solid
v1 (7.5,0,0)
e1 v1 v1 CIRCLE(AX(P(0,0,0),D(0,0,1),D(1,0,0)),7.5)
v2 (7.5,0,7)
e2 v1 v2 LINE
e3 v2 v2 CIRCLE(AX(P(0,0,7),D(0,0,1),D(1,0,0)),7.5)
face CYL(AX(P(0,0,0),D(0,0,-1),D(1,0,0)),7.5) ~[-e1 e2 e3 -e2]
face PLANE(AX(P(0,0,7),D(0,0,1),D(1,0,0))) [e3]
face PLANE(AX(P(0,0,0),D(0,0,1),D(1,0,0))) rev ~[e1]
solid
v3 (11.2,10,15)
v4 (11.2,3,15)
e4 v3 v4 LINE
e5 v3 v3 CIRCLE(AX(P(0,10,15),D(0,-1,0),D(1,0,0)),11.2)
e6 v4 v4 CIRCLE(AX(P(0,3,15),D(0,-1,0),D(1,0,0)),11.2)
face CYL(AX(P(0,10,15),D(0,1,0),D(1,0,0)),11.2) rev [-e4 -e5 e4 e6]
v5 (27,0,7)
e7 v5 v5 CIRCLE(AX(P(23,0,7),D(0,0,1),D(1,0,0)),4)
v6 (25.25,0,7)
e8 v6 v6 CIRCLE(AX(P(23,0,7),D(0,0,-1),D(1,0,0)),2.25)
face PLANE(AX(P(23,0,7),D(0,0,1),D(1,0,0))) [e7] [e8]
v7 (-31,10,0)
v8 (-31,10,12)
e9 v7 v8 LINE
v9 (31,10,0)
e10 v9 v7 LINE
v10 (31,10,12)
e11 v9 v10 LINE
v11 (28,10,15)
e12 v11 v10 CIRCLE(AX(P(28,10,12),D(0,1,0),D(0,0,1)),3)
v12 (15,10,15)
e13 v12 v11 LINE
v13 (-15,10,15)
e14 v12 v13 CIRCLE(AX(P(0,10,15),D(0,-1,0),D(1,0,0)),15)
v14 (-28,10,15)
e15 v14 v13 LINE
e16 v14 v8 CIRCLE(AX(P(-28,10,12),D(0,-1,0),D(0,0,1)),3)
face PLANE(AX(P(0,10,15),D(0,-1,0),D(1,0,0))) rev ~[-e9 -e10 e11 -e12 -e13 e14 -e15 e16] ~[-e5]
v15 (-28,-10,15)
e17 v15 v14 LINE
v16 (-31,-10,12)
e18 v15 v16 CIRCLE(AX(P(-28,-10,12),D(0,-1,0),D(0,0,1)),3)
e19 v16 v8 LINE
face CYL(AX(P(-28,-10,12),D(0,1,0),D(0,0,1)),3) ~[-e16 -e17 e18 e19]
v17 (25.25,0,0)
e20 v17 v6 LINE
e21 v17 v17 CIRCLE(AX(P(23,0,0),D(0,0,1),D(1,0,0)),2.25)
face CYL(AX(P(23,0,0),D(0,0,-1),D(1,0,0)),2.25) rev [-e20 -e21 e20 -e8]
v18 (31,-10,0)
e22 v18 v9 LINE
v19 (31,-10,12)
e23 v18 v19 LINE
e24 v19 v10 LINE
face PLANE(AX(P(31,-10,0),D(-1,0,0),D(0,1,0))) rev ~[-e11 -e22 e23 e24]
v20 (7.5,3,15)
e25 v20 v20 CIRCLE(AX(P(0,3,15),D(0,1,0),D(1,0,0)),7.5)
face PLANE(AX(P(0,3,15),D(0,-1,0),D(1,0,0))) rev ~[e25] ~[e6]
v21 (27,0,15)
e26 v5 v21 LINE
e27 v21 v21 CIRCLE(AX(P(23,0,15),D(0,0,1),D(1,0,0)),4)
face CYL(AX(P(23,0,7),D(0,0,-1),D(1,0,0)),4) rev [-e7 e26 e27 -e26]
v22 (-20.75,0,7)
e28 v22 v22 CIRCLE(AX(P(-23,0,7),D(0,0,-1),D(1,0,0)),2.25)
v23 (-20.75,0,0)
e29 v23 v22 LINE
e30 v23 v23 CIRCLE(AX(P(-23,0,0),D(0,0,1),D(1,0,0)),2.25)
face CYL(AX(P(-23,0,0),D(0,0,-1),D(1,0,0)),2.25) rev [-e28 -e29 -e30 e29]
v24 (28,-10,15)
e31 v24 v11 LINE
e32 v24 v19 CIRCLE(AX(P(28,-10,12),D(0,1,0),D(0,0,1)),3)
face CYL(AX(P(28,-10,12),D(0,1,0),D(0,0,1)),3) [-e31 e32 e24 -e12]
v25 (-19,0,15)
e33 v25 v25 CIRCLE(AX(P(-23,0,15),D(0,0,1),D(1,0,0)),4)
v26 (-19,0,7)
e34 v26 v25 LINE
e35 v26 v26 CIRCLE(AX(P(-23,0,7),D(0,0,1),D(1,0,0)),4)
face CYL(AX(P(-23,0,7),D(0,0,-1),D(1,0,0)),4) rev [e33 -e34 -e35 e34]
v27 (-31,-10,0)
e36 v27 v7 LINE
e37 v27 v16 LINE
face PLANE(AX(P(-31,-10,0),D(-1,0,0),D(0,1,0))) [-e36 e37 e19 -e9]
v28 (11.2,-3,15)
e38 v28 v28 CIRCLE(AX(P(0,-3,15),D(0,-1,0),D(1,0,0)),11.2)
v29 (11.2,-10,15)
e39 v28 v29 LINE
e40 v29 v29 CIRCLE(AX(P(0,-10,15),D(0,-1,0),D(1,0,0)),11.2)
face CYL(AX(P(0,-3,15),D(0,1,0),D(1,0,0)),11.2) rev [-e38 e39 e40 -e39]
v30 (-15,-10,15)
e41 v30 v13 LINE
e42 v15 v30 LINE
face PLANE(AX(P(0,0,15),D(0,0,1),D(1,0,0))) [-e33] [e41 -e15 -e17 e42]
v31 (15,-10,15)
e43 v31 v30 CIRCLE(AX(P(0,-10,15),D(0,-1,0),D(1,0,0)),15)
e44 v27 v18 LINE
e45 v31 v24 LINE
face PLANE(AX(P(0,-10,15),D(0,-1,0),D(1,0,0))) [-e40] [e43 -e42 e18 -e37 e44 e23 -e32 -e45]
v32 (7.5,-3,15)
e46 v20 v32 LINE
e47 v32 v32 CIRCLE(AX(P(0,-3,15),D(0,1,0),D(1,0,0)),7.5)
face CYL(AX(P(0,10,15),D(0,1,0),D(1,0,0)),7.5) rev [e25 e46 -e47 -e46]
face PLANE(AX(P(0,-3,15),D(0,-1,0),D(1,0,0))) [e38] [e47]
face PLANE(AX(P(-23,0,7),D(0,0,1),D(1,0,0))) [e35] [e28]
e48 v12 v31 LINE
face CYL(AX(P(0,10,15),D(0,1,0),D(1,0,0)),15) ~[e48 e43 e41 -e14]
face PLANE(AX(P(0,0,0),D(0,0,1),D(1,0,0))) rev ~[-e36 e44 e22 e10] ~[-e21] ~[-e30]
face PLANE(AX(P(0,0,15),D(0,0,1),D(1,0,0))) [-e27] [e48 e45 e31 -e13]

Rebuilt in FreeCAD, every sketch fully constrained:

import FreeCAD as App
import Part
import Sketcher


def edges_at(feature, points):
    """Names of the edges that pass closest to the given points."""
    edges = feature.Shape.Edges
    near = lambda p: min(range(len(edges)), key=lambda i: edges[i].distToShape(Part.Vertex(*p))[0])
    return sorted({f"Edge{near(p) + 1}" for p in points})


def add_polygon(sketch, points):
    """Adds a closed chain of lines whose ends are joined by coincident constraints."""
    first, n = sketch.GeometryCount, len(points)
    for a, b in zip(points, points[1:] + points[:1]):
        sketch.addGeometry(Part.LineSegment(App.Vector(*a, 0), App.Vector(*b, 0)), False)
    for i in range(n):
        sketch.addConstraint(Sketcher.Constraint("Coincident", first + i, 2, first + (i + 1) % n, 1))

doc = App.newDocument("Part")
body = doc.addObject("PartDesign::Body", "Body")

# Sketch on XY plane
sketch1 = body.newObject("Sketcher::SketchObject", "Sketch")
sketch1.AttachmentSupport = (doc.getObject("XY_Plane"), [""])
sketch1.MapMode = "FlatFace"
sketch1.addGeometry(Part.Circle(App.Vector(0, 0, 0), App.Vector(0, 0, 1), 8), False)
sketch1.addConstraint([
    Sketcher.Constraint("Coincident", 0, 3, -1, 1),
    Sketcher.Constraint("Diameter", 0, 15.0),
])
pad1 = body.newObject("PartDesign::Pad", "Pad")
pad1.Profile = sketch1
pad1.Length = 7
body2 = doc.addObject("PartDesign::Body", "Body001")

# Sketch on XY plane
sketch2 = body2.newObject("Sketcher::SketchObject", "Sketch001")
sketch2.AttachmentSupport = (doc.getObject("XY_Plane001"), [""])
sketch2.MapMode = "FlatFace"
sketch2.AttachmentOffset = App.Placement(App.Vector(0, 0, 7), App.Rotation())
sketch2.addGeometry(Part.Circle(App.Vector(0, 0, 0), App.Vector(0, 0, 1), 4), False)
sketch2.addConstraint([
    Sketcher.Constraint("Coincident", 0, 3, -1, 1),
    Sketcher.Constraint("Diameter", 0, 8.0),
])
pad2 = body2.newObject("PartDesign::Pad", "Pad001")
pad2.Profile = sketch2
pad2.Length = 8
body3 = doc.addObject("PartDesign::Body", "Body002")

# Sketch on XY plane
sketch3 = body3.newObject("Sketcher::SketchObject", "Sketch002")
sketch3.AttachmentSupport = (doc.getObject("XY_Plane002"), [""])
sketch3.MapMode = "FlatFace"
sketch3.addGeometry(Part.Circle(App.Vector(0, 0, 0), App.Vector(0, 0, 1), 2.2), False)
sketch3.addConstraint([
    Sketcher.Constraint("Coincident", 0, 3, -1, 1),
    Sketcher.Constraint("Diameter", 0, 4.5),
])
pad3 = body3.newObject("PartDesign::Pad", "Pad002")
pad3.Profile = sketch3
pad3.Length = 15
doc.recompute()

boolean = body3.newObject("PartDesign::Boolean", "Boolean")
boolean.Type = "Fuse"
boolean.addObjects([body2])
body4 = doc.addObject("PartDesign::Body", "Body003")
doc.recompute()

body3.Placement = App.Placement(App.Vector(-23, 0, 0), App.Rotation(App.Vector(0, 0, 1), 0))
boolean2 = body4.newObject("PartDesign::Boolean", "Boolean001")
boolean2.Type = "Fuse"
boolean2.addObjects([body3])
body5 = doc.addObject("PartDesign::Body", "Body004")

# Sketch on XZ plane
sketch4 = body5.newObject("Sketcher::SketchObject", "Sketch003")
sketch4.AttachmentSupport = (doc.getObject("XZ_Plane004"), [""])
sketch4.MapMode = "FlatFace"
sketch4.AttachmentOffset = App.Placement(App.Vector(0, 0, 3), App.Rotation())
sketch4.addGeometry(Part.Circle(App.Vector(0, 15, 0), App.Vector(0, 0, 1), 11), False)
sketch4.addConstraint([
    Sketcher.Constraint("PointOnObject", 0, 3, -2),
    Sketcher.Constraint("Diameter", 0, 22.4),
    Sketcher.Constraint("DistanceY", -1, 1, 0, 3, 15.0),
])
pad4 = body5.newObject("PartDesign::Pad", "Pad003")
pad4.Profile = sketch4
pad4.Length = 7
body6 = doc.addObject("PartDesign::Body", "Body005")

# Sketch on XZ plane
sketch5 = body6.newObject("Sketcher::SketchObject", "Sketch004")
sketch5.AttachmentSupport = (doc.getObject("XZ_Plane005"), [""])
sketch5.MapMode = "FlatFace"
sketch5.AttachmentOffset = App.Placement(App.Vector(0, 0, -10), App.Rotation())
sketch5.addGeometry(Part.Circle(App.Vector(0, 15, 0), App.Vector(0, 0, 1), 11), False)
sketch5.addConstraint([
    Sketcher.Constraint("PointOnObject", 0, 3, -2),
    Sketcher.Constraint("Diameter", 0, 22.4),
    Sketcher.Constraint("DistanceY", -1, 1, 0, 3, 15.0),
])
pad5 = body6.newObject("PartDesign::Pad", "Pad004")
pad5.Profile = sketch5
pad5.Length = 7
body7 = doc.addObject("PartDesign::Body", "Body006")

# Sketch on XZ plane
sketch6 = body7.newObject("Sketcher::SketchObject", "Sketch005")
sketch6.AttachmentSupport = (doc.getObject("XZ_Plane006"), [""])
sketch6.MapMode = "FlatFace"
sketch6.AttachmentOffset = App.Placement(App.Vector(0, 0, -10), App.Rotation())
sketch6.addGeometry(Part.Circle(App.Vector(0, 15, 0), App.Vector(0, 0, 1), 8), False)
sketch6.addConstraint([
    Sketcher.Constraint("PointOnObject", 0, 3, -2),
    Sketcher.Constraint("Diameter", 0, 15.0),
    Sketcher.Constraint("DistanceY", -1, 1, 0, 3, 15.0),
])
pad6 = body7.newObject("PartDesign::Pad", "Pad005")
pad6.Profile = sketch6
pad6.Length = 20
doc.recompute()

boolean3 = body7.newObject("PartDesign::Boolean", "Boolean002")
boolean3.Type = "Fuse"
boolean3.addObjects([body5])
doc.recompute()

boolean4 = body7.newObject("PartDesign::Boolean", "Boolean003")
boolean4.Type = "Fuse"
boolean4.addObjects([body6])
body8 = doc.addObject("PartDesign::Body", "Body007")

# Sketch on XY plane
sketch7 = body8.newObject("Sketcher::SketchObject", "Sketch006")
sketch7.AttachmentSupport = (doc.getObject("XY_Plane007"), [""])
sketch7.MapMode = "FlatFace"
sketch7.AttachmentOffset = App.Placement(App.Vector(0, 0, 7), App.Rotation())
sketch7.addGeometry(Part.Circle(App.Vector(0, 0, 0), App.Vector(0, 0, 1), 4), False)
sketch7.addConstraint([
    Sketcher.Constraint("Coincident", 0, 3, -1, 1),
    Sketcher.Constraint("Diameter", 0, 8.0),
])
pad7 = body8.newObject("PartDesign::Pad", "Pad006")
pad7.Profile = sketch7
pad7.Length = 8
body9 = doc.addObject("PartDesign::Body", "Body008")

# Sketch on XY plane
sketch8 = body9.newObject("Sketcher::SketchObject", "Sketch007")
sketch8.AttachmentSupport = (doc.getObject("XY_Plane008"), [""])
sketch8.MapMode = "FlatFace"
sketch8.addGeometry(Part.Circle(App.Vector(0, 0, 0), App.Vector(0, 0, 1), 2.2), False)
sketch8.addConstraint([
    Sketcher.Constraint("Coincident", 0, 3, -1, 1),
    Sketcher.Constraint("Diameter", 0, 4.5),
])
pad8 = body9.newObject("PartDesign::Pad", "Pad007")
pad8.Profile = sketch8
pad8.Length = 15
doc.recompute()

boolean5 = body9.newObject("PartDesign::Boolean", "Boolean004")
boolean5.Type = "Fuse"
boolean5.addObjects([body8])
body10 = doc.addObject("PartDesign::Body", "Body009")
body10.AllowCompound = True
doc.recompute()

body9.Placement = App.Placement(App.Vector(23, 0, 0), App.Rotation(App.Vector(0, 0, 1), 0))
boolean6 = body10.newObject("PartDesign::Boolean", "Boolean005")
boolean6.Type = "Fuse"
boolean6.addObjects([body9])
doc.recompute()

boolean7 = body10.newObject("PartDesign::Boolean", "Boolean006")
boolean7.Type = "Fuse"
boolean7.addObjects([body4])
doc.recompute()

boolean8 = body10.newObject("PartDesign::Boolean", "Boolean007")
boolean8.Type = "Fuse"
boolean8.addObjects([body7])
body11 = doc.addObject("PartDesign::Body", "Body010")

# Sketch on XZ plane
sketch9 = body11.newObject("Sketcher::SketchObject", "Sketch008")
sketch9.AttachmentSupport = (doc.getObject("XZ_Plane010"), [""])
sketch9.MapMode = "FlatFace"
sketch9.AttachmentOffset = App.Placement(App.Vector(0, 0, -10), App.Rotation())
sketch9.addGeometry(Part.Circle(App.Vector(0, 15, 0), App.Vector(0, 0, 1), 15), False)
sketch9.addConstraint([
    Sketcher.Constraint("PointOnObject", 0, 3, -2),
    Sketcher.Constraint("Diameter", 0, 30.0),
    Sketcher.Constraint("DistanceY", -1, 1, 0, 3, 15.0),
])
pad9 = body11.newObject("PartDesign::Pad", "Pad008")
pad9.Profile = sketch9
pad9.Length = 20
body12 = doc.addObject("PartDesign::Body", "Body011")

# Sketch on XY plane
sketch10 = body12.newObject("Sketcher::SketchObject", "Sketch009")
sketch10.AttachmentSupport = (doc.getObject("XY_Plane011"), [""])
sketch10.MapMode = "FlatFace"
add_polygon(sketch10, [(-31, 10), (-31, -10), (31, -10), (31, 10)])  # lines 0-3
sketch10.addConstraint([
    Sketcher.Constraint("Vertical", 0),
    Sketcher.Constraint("Horizontal", 1),
    Sketcher.Constraint("Vertical", 2),
    Sketcher.Constraint("Horizontal", 3),
    Sketcher.Constraint("Symmetric", 0, 2, 2, 2, -1, 1),
    Sketcher.Constraint("DistanceX", 1, 1, 1, 2, 62.0),
    Sketcher.Constraint("DistanceY", 0, 2, 0, 1, 20.0),
])
pad10 = body12.newObject("PartDesign::Pad", "Pad009")
pad10.Profile = sketch10
pad10.Length = 15
doc.recompute()

boolean9 = body12.newObject("PartDesign::Boolean", "Boolean008")
boolean9.Type = "Fuse"
boolean9.addObjects([body11])
doc.recompute()

boolean10 = body12.newObject("PartDesign::Boolean", "Boolean009")
boolean10.Type = "Cut"
boolean10.addObjects([body10])
doc.recompute()

fillet = body12.newObject("PartDesign::Fillet", "Fillet")
fillet.Base = (boolean10, edges_at(boolean10, [(-31, 0, 15), (31, 0, 15)]))
fillet.Radius = 3

doc.recompute()
